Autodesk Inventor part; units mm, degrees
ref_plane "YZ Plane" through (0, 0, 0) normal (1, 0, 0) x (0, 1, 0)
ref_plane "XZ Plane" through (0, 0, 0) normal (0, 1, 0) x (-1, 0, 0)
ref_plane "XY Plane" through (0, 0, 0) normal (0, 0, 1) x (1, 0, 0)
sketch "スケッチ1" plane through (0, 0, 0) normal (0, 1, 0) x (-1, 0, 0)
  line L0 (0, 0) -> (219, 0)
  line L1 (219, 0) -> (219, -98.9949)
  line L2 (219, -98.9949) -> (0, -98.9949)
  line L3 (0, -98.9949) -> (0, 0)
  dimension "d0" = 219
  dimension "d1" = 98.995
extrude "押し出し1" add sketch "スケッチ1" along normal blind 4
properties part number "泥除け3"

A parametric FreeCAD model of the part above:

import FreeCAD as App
import Part
import Sketcher


def add_polygon(sketch, points):
    """Adds a closed chain of lines whose ends are joined by coincident constraints."""
    first, n = sketch.GeometryCount, len(points)
    for a, b in zip(points, points[1:] + points[:1]):
        sketch.addGeometry(Part.LineSegment(App.Vector(*a, 0), App.Vector(*b, 0)), False)
    for i in range(n):
        sketch.addConstraint(Sketcher.Constraint("Coincident", first + i, 2, first + (i + 1) % n, 1))

doc = App.newDocument("Part")
body = doc.addObject("PartDesign::Body", "Body")

# Sketch on XZ plane
sketch1 = body.newObject("Sketcher::SketchObject", "Sketch")
sketch1.AttachmentSupport = (doc.getObject("XZ_Plane"), [""])
sketch1.MapMode = "FlatFace"
add_polygon(sketch1, [(-219, 0), (0, 0), (0, -99), (-219, -99)])  # lines 0-3
sketch1.addConstraint([
    Sketcher.Constraint("Horizontal", 0),
    Sketcher.Constraint("Vertical", 1),
    Sketcher.Constraint("Horizontal", 2),
    Sketcher.Constraint("Vertical", 3),
    Sketcher.Constraint("Coincident", 0, 2, -1, 1),
    Sketcher.Constraint("DistanceX", 0, 1, 0, 2, 219.0),
    Sketcher.Constraint("DistanceY", 1, 2, 1, 1, 98.995),
])
pad1 = body.newObject("PartDesign::Pad", "Pad")
pad1.Profile = sketch1
pad1.Length = 4
pad1.Reversed = True

doc.recompute()
